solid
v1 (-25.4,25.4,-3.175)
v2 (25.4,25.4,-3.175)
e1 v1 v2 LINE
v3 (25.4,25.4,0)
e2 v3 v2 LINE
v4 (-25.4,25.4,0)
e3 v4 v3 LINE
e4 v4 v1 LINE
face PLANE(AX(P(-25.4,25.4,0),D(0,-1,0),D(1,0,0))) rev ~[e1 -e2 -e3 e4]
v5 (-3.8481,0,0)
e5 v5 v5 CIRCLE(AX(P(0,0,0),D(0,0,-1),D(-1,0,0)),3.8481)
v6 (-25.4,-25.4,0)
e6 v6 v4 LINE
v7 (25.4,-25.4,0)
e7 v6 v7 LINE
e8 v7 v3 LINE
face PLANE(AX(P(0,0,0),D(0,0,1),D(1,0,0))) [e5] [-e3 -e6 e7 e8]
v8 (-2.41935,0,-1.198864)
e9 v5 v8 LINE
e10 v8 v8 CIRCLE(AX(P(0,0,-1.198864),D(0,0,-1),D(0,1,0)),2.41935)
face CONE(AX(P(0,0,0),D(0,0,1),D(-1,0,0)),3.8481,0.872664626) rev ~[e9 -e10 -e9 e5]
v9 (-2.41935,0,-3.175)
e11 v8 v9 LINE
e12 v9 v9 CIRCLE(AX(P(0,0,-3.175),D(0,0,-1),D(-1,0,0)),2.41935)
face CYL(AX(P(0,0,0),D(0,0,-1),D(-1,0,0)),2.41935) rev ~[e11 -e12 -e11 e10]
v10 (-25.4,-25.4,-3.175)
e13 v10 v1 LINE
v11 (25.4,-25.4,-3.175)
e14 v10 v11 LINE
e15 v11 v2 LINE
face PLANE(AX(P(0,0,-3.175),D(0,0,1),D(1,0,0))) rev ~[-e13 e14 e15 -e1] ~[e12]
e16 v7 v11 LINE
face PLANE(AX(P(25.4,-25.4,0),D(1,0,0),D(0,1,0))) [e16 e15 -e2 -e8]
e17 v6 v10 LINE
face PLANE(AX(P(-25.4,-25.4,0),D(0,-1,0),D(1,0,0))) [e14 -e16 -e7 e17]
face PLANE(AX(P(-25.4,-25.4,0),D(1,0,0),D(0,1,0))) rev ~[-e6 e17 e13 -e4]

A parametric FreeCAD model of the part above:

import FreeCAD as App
import Part
import Sketcher
Q = App.Units.Quantity


def add_polygon(sketch, points):
    """Adds a closed chain of lines whose ends are joined by coincident constraints."""
    first, n = sketch.GeometryCount, len(points)
    for a, b in zip(points, points[1:] + points[:1]):
        sketch.addGeometry(Part.LineSegment(App.Vector(*a, 0), App.Vector(*b, 0)), False)
    for i in range(n):
        sketch.addConstraint(Sketcher.Constraint("Coincident", first + i, 2, first + (i + 1) % n, 1))

doc = App.newDocument("Part")
body = doc.addObject("PartDesign::Body", "Body")

sketch1 = body.newObject("Sketcher::SketchObject", "Sketch")
sketch1.AttachmentSupport = (doc.getObject("XY_Plane"), [""])
sketch1.MapMode = "FlatFace"
add_polygon(sketch1, [(-25.4, 25.4), (-25.4, -25.4), (25.4, -25.4), (25.4, 25.4)])
sketch1.addConstraint([
    Sketcher.Constraint("Vertical", 0),
    Sketcher.Constraint("Horizontal", 1),
    Sketcher.Constraint("Vertical", 2),
    Sketcher.Constraint("Horizontal", 3),
    Sketcher.Constraint("Symmetric", 0, 2, 2, 2, -1, 1),
    Sketcher.Constraint("Equal", 3, 0),
    Sketcher.Constraint("DistanceX", 1, 1, 1, 2, Q("2 in")),
])
pad1 = body.newObject("PartDesign::Pad", "Pad")
pad1.Profile = sketch1
pad1.Length = Q("0.125 in")
pad1.Reversed = True

sketch2 = body.newObject("Sketcher::SketchObject", "Sketch001")
sketch2.AttachmentSupport = (doc.getObject("XY_Plane"), [""])
sketch2.MapMode = "FlatFace"
sketch2.addGeometry(Part.Circle(App.Vector(0, 0, 0), App.Vector(0, 0, 1), 2.41935), False)
sketch2.addConstraint([
    Sketcher.Constraint("Coincident", 0, 3, -1, 1),
    Sketcher.Constraint("Diameter", 0, Q("0.1905 in")),
])
doc.recompute()
hole = body.newObject("PartDesign::Hole", "Hole")
hole.Profile = sketch2
hole.ThreadType = "None"
hole.Diameter = Q("0.1905 in")
hole.DepthType = "ThroughAll"
hole.HoleCutType = "Countersink"
hole.HoleCutDiameter = Q("0.303 in")
hole.HoleCutCountersinkAngle = 100

doc.recompute()
